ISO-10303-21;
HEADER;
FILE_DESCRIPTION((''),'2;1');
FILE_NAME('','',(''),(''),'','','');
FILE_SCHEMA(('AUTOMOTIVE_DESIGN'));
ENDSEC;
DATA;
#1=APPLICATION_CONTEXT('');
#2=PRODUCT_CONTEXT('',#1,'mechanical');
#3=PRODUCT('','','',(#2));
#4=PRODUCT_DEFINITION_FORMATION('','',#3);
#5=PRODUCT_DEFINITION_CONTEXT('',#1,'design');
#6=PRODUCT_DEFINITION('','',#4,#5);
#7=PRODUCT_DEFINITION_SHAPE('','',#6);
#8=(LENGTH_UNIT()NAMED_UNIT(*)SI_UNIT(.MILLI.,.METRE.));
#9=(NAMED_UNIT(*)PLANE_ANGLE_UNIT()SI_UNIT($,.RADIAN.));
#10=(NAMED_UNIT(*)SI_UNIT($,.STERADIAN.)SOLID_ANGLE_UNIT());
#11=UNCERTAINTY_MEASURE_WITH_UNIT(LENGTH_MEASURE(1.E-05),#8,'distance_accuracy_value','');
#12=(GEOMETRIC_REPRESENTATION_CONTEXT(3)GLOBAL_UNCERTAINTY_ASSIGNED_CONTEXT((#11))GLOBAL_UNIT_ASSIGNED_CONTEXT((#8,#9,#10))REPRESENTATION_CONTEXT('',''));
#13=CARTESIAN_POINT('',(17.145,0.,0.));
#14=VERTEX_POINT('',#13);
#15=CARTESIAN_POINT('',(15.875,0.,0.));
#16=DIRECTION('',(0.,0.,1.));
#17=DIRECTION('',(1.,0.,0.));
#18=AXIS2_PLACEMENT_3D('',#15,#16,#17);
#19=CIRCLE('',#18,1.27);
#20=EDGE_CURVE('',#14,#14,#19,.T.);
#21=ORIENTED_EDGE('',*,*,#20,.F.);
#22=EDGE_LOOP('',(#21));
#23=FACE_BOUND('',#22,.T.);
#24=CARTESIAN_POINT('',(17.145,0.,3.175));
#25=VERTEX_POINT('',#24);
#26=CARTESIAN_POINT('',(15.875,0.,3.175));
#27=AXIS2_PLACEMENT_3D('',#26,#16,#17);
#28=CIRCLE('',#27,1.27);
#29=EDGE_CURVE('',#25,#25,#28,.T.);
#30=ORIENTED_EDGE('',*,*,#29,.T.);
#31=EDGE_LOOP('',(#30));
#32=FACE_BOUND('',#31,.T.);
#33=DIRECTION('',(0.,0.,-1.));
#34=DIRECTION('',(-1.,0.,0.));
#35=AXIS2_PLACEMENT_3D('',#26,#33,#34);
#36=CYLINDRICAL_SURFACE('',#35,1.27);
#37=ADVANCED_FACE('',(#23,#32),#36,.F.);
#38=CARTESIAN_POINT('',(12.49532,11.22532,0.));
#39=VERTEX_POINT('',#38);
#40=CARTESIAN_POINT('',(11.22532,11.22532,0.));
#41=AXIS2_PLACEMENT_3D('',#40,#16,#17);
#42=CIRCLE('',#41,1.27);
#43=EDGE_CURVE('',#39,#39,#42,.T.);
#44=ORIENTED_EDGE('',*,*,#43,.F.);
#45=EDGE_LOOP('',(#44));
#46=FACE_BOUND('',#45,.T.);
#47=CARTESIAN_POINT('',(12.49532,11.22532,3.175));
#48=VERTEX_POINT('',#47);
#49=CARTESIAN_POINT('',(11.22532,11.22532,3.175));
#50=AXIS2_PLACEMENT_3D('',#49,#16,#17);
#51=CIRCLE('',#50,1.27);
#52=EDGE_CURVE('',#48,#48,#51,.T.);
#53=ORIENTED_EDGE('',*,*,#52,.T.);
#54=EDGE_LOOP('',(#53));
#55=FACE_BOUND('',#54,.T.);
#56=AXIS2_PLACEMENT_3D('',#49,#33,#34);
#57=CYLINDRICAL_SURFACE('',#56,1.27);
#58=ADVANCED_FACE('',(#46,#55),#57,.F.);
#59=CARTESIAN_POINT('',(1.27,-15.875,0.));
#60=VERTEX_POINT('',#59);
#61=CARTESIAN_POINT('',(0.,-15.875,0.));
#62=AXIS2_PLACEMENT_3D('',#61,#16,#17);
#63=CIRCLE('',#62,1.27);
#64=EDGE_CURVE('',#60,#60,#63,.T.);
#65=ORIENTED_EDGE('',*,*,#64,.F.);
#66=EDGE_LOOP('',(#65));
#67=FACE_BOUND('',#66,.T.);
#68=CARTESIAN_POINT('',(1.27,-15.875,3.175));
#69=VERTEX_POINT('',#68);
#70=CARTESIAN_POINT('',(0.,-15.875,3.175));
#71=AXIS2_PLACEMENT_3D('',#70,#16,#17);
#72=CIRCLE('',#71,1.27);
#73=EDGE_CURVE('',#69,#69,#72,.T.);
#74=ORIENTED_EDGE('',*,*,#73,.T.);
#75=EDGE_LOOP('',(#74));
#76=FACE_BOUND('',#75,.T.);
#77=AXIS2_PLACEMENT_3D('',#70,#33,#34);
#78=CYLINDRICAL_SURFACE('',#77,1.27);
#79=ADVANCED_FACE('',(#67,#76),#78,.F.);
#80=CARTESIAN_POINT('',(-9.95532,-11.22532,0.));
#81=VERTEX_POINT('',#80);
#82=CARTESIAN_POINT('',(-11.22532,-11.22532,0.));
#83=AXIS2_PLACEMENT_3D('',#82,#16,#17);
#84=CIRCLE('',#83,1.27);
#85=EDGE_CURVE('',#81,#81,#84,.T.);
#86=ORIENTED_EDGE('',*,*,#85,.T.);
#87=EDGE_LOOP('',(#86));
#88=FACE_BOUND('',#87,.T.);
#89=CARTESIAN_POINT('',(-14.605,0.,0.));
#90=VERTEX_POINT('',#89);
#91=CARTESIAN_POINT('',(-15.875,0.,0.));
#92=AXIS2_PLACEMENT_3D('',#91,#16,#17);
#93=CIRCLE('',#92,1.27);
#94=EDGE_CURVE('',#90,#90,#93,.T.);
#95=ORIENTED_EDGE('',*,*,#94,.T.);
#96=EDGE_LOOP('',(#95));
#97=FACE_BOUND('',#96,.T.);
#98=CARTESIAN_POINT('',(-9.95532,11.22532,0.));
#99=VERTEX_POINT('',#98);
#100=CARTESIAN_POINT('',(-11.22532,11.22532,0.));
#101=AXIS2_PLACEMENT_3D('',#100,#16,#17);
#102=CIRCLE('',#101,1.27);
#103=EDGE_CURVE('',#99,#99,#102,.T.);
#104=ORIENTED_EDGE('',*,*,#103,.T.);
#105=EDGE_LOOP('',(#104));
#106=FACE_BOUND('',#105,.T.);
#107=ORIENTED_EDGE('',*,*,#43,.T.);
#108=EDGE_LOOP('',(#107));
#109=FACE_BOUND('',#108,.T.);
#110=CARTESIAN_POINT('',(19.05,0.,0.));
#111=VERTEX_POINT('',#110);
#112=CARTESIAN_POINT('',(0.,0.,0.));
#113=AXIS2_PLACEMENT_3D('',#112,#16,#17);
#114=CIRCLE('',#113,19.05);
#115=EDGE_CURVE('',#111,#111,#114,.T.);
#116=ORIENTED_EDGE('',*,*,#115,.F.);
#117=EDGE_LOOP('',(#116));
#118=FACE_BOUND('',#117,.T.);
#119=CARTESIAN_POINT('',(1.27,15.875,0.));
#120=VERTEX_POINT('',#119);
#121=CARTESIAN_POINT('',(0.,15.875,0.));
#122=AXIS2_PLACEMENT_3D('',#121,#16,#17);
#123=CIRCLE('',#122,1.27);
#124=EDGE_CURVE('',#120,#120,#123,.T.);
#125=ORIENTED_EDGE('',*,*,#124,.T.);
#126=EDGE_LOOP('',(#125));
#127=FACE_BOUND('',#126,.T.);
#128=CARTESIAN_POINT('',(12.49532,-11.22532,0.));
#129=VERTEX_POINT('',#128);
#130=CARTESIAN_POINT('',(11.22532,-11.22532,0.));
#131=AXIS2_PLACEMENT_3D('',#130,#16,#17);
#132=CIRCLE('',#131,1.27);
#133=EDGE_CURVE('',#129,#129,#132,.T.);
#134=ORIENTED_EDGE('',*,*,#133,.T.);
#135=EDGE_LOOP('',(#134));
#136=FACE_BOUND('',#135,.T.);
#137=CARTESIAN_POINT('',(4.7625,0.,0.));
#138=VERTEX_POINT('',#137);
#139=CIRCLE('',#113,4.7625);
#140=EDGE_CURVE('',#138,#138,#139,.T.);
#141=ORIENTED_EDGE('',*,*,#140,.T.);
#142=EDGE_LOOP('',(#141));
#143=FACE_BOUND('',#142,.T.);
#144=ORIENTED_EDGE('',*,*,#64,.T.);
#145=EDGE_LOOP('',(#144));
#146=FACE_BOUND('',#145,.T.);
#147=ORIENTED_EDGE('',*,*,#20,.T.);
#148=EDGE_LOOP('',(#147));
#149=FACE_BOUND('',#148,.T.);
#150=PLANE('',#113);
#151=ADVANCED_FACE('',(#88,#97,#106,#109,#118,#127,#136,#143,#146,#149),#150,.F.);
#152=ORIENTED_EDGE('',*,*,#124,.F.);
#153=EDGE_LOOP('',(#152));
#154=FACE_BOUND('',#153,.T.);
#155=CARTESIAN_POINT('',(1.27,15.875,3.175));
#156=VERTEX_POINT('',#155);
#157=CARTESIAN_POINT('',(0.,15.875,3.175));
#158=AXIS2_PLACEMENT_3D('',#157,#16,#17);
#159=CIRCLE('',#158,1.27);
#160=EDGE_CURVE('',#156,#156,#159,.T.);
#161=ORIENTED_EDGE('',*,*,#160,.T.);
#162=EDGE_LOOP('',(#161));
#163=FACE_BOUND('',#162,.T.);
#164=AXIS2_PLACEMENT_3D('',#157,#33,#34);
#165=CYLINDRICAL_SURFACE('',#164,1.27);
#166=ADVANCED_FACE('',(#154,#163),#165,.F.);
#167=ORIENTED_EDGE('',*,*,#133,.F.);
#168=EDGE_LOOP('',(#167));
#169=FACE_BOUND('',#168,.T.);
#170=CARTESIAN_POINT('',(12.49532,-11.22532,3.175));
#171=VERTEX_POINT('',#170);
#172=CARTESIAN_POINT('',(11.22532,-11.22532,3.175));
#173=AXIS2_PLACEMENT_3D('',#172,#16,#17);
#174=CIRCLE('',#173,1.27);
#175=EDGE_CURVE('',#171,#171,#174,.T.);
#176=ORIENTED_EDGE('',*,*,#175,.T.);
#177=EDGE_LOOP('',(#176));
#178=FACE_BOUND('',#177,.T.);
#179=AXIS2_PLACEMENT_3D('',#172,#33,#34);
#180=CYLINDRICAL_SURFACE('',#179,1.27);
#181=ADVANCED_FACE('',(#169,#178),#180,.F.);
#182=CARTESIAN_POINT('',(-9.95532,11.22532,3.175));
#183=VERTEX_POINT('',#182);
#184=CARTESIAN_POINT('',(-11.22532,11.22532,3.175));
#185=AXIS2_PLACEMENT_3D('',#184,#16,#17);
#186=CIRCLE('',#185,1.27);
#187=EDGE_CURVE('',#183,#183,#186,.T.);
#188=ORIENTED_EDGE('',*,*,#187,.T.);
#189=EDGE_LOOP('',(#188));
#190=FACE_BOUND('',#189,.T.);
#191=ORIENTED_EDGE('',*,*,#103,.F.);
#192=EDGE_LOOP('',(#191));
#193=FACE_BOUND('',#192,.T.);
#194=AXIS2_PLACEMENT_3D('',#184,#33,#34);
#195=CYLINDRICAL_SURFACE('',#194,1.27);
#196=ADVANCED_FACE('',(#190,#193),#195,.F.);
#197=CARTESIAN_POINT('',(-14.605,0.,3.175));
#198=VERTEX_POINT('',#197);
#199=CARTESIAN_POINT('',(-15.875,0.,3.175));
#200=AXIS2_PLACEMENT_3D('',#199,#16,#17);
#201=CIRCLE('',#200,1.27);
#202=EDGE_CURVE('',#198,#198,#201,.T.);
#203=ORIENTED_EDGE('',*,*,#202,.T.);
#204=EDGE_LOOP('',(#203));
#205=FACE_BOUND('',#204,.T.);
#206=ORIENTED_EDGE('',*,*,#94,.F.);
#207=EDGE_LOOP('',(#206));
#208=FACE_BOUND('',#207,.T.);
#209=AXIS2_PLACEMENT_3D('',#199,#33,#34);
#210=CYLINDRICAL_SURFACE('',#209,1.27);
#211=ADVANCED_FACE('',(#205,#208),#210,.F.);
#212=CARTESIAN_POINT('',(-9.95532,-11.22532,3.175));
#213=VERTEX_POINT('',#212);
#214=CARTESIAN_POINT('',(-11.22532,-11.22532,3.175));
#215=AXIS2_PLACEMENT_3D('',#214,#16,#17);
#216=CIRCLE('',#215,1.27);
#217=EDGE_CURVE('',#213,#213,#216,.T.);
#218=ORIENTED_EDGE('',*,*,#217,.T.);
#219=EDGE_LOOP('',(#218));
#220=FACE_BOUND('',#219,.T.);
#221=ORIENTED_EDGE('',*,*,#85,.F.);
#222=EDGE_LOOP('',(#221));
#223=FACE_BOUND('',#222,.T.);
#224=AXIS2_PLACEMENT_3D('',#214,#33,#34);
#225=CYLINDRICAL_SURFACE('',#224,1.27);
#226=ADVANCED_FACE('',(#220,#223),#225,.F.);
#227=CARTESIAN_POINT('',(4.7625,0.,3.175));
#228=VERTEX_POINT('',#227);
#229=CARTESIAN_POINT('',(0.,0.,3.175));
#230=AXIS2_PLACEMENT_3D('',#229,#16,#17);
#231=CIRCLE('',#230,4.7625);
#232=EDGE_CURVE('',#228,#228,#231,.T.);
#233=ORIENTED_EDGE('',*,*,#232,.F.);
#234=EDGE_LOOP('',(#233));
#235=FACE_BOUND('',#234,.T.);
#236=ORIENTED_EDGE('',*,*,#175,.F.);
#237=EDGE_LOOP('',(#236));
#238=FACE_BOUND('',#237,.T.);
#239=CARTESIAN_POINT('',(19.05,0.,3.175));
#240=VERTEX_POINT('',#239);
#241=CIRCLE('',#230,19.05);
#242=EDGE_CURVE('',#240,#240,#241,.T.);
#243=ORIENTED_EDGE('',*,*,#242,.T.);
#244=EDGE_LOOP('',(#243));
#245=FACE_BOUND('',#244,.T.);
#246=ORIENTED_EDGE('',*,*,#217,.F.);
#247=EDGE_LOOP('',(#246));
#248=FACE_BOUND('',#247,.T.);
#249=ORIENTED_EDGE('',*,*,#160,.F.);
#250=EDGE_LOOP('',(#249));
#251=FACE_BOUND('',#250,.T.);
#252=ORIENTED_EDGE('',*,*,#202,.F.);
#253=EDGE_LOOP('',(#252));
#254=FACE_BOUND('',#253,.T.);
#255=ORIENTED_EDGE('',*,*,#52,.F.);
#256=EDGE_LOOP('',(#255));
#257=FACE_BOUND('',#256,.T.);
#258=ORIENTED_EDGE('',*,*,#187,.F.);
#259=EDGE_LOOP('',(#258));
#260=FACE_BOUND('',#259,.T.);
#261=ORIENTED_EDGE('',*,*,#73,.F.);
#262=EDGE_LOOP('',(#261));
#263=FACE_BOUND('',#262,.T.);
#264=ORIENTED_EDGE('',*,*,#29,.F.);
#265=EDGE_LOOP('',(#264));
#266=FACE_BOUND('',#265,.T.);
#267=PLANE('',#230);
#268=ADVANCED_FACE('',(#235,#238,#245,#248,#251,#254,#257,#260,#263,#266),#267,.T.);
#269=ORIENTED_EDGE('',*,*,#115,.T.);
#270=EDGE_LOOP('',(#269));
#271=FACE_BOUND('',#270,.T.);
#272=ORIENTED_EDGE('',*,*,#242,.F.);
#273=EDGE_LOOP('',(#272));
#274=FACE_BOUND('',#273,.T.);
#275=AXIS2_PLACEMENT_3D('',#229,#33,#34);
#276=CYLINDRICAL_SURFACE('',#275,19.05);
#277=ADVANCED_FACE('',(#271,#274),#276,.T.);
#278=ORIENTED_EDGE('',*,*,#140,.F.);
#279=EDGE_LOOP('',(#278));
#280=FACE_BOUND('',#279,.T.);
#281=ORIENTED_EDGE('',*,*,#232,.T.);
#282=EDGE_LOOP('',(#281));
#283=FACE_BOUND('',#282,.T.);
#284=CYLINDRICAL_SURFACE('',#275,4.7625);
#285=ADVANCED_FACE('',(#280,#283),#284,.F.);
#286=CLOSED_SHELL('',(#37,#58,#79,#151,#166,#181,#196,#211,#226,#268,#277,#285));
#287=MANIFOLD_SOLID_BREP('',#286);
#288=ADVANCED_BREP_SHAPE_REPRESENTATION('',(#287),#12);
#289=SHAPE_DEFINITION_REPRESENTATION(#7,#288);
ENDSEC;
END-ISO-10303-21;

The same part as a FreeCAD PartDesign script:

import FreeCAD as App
import Part
import Sketcher
from FreeCAD import Vector
Q = App.Units.Quantity

doc = App.newDocument("Part")
body = doc.addObject("PartDesign::Body", "Body")

# Sketch on XY plane
sketch1 = body.newObject("Sketcher::SketchObject", "Sketch")
sketch1.AttachmentSupport = (doc.getObject("XY_Plane"), [""])
sketch1.MapMode = "FlatFace"
sketch1.addGeometry([
    Part.Circle(Vector(0, 0, 0), Vector(0, 0, 1), 19.1),  # 0
    Part.Circle(Vector(-11.2, -11.2, 0), Vector(0, 0, 1), 1.3),  # 1
    Part.Circle(Vector(0, -15.9, 0), Vector(0, 0, 1), 1.3),  # 2
    Part.Circle(Vector(11.2, -11.2, 0), Vector(0, 0, 1), 1.3),  # 3
    Part.Circle(Vector(-15.9, 0, 0), Vector(0, 0, 1), 1.3),  # 4
    Part.Circle(Vector(-11.2, 11.2, 0), Vector(0, 0, 1), 1.3),  # 5
    Part.Circle(Vector(0, 0, 0), Vector(0, 0, 1), 4.8),  # 6
    Part.Circle(Vector(15.9, 0, 0), Vector(0, 0, 1), 1.3),  # 7
    Part.Circle(Vector(0, 15.9, 0), Vector(0, 0, 1), 1.3),  # 8
    Part.Circle(Vector(11.2, 11.2, 0), Vector(0, 0, 1), 1.3),  # 9
], False)
sketch1.addConstraint([
    Sketcher.Constraint("Coincident", 0, 3, -1, 1),
    Sketcher.Constraint("Coincident", 6, 3, -1, 1),
    Sketcher.Constraint("Equal", 1, 2),
    Sketcher.Constraint("Equal", 2, 3),
    Sketcher.Constraint("Equal", 3, 4),
    Sketcher.Constraint("Equal", 4, 5),
    Sketcher.Constraint("Equal", 5, 7),
    Sketcher.Constraint("Equal", 7, 8),
    Sketcher.Constraint("Equal", 8, 9),
    Sketcher.Constraint("Symmetric", 3, 3, 5, 3, -1, 1),
    Sketcher.Constraint("Symmetric", 4, 3, 7, 3, -1, 1),
    Sketcher.Constraint("Symmetric", 2, 3, 8, 3, -1, 1),
    Sketcher.Constraint("Symmetric", 1, 3, 9, 3, -1, 1),
    Sketcher.Constraint("Symmetric", 1, 3, 3, 3, -2),
    Sketcher.Constraint("PointOnObject", 2, 3, -2),
    Sketcher.Constraint("PointOnObject", 4, 3, -1),
    Sketcher.Constraint("Diameter", 0, Q("1.5 in")),
    Sketcher.Constraint("Diameter", 1, Q("0.1 in")),
    Sketcher.Constraint("Diameter", 6, Q("0.375 in")),
    Sketcher.Constraint("DistanceY", 2, 3, -1, 1, Q("0.625 in")),
    Sketcher.Constraint("DistanceX", 4, 3, -1, 1, Q("0.625 in")),
    Sketcher.Constraint("DistanceX", 1, 3, -1, 1, Q("11.22532 mm")),
    Sketcher.Constraint("DistanceY", 1, 3, -1, 1, Q("11.22532 mm")),
])
pad1 = body.newObject("PartDesign::Pad", "Pad")
pad1.Profile = sketch1
pad1.Length = Q("0.125 in")

doc.recompute()
